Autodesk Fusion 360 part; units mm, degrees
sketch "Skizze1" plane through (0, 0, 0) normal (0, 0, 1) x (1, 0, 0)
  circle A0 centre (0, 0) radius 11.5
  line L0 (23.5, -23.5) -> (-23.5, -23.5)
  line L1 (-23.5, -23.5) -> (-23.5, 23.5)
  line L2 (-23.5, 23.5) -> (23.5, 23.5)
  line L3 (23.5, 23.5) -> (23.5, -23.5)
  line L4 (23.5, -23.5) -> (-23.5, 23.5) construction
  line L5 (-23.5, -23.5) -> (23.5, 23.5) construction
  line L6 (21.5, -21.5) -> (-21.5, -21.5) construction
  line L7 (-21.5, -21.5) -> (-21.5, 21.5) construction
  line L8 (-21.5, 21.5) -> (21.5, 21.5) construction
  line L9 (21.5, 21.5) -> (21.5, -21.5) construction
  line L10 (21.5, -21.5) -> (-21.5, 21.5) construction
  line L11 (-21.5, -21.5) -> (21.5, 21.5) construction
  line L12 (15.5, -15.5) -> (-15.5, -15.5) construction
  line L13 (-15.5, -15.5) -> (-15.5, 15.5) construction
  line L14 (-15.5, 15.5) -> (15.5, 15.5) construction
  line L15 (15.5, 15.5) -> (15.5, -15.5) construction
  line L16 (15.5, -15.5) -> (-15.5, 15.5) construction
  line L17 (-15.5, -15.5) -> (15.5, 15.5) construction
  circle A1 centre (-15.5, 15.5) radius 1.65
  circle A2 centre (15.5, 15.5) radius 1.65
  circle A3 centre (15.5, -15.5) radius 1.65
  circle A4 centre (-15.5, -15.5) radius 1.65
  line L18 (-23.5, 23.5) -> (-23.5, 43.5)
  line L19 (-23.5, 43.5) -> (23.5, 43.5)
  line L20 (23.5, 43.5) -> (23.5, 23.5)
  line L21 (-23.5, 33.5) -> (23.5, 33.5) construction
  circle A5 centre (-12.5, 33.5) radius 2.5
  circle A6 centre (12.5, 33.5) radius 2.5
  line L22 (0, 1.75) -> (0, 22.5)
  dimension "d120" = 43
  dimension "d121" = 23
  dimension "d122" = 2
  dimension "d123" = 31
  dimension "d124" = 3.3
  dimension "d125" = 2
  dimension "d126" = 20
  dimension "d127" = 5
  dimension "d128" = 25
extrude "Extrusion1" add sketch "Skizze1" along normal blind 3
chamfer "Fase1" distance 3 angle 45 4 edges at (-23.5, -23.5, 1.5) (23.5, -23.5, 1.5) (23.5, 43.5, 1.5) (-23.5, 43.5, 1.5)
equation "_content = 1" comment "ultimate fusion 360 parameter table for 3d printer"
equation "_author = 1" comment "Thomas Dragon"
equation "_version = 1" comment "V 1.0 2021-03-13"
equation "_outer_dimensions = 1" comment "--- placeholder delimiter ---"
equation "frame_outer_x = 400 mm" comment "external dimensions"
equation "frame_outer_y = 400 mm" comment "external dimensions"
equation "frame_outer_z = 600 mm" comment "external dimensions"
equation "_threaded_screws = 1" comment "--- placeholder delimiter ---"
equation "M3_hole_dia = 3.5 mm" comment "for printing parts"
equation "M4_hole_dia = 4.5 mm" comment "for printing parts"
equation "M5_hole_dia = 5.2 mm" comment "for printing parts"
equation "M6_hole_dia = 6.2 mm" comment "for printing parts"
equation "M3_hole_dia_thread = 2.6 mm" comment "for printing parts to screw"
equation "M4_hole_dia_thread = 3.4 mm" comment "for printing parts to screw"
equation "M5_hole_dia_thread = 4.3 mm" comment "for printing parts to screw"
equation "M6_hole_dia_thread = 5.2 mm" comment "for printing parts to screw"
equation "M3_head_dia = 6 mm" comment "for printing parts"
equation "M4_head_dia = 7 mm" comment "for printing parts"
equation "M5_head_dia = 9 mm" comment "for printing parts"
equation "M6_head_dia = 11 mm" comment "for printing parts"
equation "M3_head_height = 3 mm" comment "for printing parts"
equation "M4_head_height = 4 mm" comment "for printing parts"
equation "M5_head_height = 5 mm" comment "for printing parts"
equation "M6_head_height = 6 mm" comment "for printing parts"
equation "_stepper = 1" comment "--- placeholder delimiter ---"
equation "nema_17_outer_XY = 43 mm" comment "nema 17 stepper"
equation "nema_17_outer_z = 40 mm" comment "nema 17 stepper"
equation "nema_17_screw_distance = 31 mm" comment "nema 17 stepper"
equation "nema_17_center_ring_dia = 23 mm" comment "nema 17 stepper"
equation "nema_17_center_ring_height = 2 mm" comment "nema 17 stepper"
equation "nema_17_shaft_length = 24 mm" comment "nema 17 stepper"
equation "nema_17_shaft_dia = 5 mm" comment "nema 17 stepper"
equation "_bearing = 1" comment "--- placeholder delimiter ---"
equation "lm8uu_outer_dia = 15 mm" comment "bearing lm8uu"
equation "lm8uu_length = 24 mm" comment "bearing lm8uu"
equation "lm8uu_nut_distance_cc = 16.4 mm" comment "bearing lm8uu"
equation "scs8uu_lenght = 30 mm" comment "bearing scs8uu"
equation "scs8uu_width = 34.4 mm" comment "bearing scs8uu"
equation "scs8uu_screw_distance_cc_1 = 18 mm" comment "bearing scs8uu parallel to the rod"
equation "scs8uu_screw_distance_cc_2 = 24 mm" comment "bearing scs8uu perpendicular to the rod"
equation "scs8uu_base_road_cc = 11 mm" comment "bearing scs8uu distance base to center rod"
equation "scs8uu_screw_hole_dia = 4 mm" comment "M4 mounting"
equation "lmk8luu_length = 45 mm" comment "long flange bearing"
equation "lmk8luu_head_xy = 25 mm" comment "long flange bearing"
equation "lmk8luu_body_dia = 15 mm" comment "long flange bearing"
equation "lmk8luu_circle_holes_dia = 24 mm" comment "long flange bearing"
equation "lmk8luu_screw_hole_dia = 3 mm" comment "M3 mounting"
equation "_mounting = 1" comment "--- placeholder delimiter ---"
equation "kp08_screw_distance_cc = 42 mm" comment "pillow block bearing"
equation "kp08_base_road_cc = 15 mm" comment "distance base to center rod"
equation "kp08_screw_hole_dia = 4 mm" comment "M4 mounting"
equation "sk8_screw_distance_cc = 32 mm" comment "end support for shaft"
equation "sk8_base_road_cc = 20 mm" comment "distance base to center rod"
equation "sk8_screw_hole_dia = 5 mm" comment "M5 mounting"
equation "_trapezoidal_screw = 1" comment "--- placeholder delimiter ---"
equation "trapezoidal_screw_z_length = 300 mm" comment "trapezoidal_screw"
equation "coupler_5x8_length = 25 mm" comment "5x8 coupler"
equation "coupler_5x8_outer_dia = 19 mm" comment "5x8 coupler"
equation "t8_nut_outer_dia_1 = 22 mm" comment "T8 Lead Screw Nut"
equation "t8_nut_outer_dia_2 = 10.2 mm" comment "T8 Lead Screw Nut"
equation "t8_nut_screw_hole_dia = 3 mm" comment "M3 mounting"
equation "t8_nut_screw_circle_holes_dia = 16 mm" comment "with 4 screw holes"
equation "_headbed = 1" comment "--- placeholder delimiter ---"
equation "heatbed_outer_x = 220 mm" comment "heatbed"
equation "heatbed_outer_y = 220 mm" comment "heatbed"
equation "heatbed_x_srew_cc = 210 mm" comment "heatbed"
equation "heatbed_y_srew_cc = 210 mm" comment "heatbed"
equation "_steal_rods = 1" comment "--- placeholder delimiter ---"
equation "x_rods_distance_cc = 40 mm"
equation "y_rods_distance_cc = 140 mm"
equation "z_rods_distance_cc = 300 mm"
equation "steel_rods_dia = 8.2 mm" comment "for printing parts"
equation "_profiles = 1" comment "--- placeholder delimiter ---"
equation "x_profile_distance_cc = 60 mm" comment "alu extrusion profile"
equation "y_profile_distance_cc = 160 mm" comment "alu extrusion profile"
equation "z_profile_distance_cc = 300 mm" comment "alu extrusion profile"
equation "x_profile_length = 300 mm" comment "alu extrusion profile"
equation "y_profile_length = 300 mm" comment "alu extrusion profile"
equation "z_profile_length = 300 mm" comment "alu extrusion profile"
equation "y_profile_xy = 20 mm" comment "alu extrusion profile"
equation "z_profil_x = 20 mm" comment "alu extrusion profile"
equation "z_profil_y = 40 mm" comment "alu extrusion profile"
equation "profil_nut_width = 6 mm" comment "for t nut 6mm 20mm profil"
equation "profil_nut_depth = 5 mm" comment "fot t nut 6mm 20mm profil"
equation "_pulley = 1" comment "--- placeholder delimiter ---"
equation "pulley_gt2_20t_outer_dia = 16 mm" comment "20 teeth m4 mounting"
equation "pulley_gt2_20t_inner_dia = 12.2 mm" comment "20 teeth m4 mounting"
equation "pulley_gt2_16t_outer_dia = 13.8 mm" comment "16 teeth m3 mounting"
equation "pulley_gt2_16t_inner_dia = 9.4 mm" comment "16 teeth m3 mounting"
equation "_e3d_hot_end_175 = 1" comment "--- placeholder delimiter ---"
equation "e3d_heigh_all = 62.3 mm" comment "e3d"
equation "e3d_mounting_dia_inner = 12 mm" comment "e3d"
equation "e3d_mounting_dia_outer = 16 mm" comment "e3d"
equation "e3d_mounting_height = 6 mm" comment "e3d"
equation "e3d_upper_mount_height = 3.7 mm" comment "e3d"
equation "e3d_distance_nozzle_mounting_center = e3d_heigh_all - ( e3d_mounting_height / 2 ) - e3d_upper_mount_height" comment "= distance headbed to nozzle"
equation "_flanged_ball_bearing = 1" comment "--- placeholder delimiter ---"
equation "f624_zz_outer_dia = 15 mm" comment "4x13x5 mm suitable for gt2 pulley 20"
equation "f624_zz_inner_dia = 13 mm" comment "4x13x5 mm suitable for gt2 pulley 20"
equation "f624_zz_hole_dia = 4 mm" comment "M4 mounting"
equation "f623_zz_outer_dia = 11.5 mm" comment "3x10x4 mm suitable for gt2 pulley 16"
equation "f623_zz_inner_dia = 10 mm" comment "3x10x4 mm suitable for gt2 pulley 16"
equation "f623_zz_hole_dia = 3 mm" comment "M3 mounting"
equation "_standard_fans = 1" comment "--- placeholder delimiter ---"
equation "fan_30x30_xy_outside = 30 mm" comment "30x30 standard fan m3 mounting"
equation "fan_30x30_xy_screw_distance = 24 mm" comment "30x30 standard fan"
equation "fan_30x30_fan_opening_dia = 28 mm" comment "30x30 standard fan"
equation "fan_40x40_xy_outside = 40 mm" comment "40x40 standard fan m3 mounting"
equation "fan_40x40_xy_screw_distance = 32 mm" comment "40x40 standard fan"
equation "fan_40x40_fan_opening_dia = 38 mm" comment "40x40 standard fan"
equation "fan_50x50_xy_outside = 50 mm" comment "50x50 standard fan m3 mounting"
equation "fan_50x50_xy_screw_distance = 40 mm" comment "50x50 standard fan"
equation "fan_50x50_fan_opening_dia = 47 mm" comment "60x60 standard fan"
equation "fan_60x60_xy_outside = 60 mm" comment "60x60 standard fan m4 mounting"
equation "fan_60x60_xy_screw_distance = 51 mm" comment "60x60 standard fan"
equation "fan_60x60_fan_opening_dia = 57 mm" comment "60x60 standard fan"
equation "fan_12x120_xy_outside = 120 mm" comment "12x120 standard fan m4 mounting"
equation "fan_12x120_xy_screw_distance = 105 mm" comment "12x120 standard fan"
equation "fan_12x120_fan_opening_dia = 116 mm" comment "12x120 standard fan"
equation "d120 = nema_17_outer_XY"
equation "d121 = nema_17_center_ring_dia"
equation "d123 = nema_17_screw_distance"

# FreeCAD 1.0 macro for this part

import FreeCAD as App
import Part
import Sketcher

V = App.Vector
Q = App.Units.Quantity


def edges_at(feature, points):
    """Names of the edges that pass closest to the given points."""
    edges = feature.Shape.Edges
    near = lambda p: min(range(len(edges)), key=lambda i: edges[i].distToShape(Part.Vertex(*p))[0])
    return sorted({f"Edge{near(p) + 1}" for p in points})

doc = App.newDocument("Part")
params = doc.addObject("Spreadsheet::Sheet", "Params")
for row, (alias, value) in enumerate([
    ("sketch1_diameter", "23 mm"),
    ("sketch1_diameter2", "5 mm"),
    ("sketch1_diameter3", "3.3 mm"),
    ("sketch1_width", "47 mm"),
    ("sketch1_height", "67 mm"),
    ("pad1_length", "3 mm"),
    ("chamfer_size", "3 mm"),
], start=1):
    params.set(f"A{row}", alias)
    params.set(f"B{row}", "=" + value)
    params.setAlias(f"B{row}", alias)

body = doc.addObject("PartDesign::Body", "Body")

# Sketch on XY plane
sketch1 = body.newObject("Sketcher::SketchObject", "Sketch")
sketch1.AttachmentSupport = (doc.getObject("XY_Plane"), [""])
sketch1.MapMode = "FlatFace"
sketch1.addGeometry([
    Part.LineSegment(V(-23.5, -23.5, 0), V(23.5, -23.5, 0)),  # 0
    Part.LineSegment(V(23.5, -23.5, 0), V(23.5, 43.5, 0)),  # 1
    Part.LineSegment(V(23.5, 43.5, 0), V(-23.5, 43.5, 0)),  # 2
    Part.LineSegment(V(-23.5, 43.5, 0), V(-23.5, -23.5, 0)),  # 3
    Part.Circle(V(-15.5, -15.5, 0), V(0, 0, 1), 1.6),  # 4
    Part.Circle(V(15.5, -15.5, 0), V(0, 0, 1), 1.6),  # 5
    Part.Circle(V(0, 0, 0), V(0, 0, 1), 11.5),  # 6
    Part.Circle(V(-15.5, 15.5, 0), V(0, 0, 1), 1.6),  # 7
    Part.Circle(V(15.5, 15.5, 0), V(0, 0, 1), 1.6),  # 8
    Part.Circle(V(12.5, 33.5, 0), V(0, 0, 1), 2.5),  # 9
    Part.Circle(V(-12.5, 33.5, 0), V(0, 0, 1), 2.5),  # 10
], False)
sketch1.addConstraint([
    Sketcher.Constraint("Coincident", 0, 2, 1, 1),
    Sketcher.Constraint("Coincident", 1, 2, 2, 1),
    Sketcher.Constraint("Coincident", 2, 2, 3, 1),
    Sketcher.Constraint("Coincident", 3, 2, 0, 1),
    Sketcher.Constraint("Horizontal", 0),
    Sketcher.Constraint("Vertical", 1),
    Sketcher.Constraint("Horizontal", 2),
    Sketcher.Constraint("Vertical", 3),
    Sketcher.Constraint("Coincident", 6, 3, -1, 1),
    Sketcher.Constraint("Equal", 4, 5),
    Sketcher.Constraint("Equal", 5, 7),
    Sketcher.Constraint("Equal", 7, 8),
    Sketcher.Constraint("Equal", 9, 10),
    Sketcher.Constraint("Symmetric", 5, 3, 7, 3, -1, 1),
    Sketcher.Constraint("Symmetric", 4, 3, 8, 3, -1, 1),
    Sketcher.Constraint("Symmetric", 4, 3, 5, 3, -2),
    Sketcher.Constraint("Symmetric", 9, 3, 10, 3, -2),
    Sketcher.Constraint("Diameter", 6, Q("23 mm")),
    Sketcher.Constraint("Diameter", 9, Q("5 mm")),
    Sketcher.Constraint("Diameter", 4, Q("3.3 mm")),
    Sketcher.Constraint("DistanceX", 4, 3, 5, 3, Q("31 mm")),
    Sketcher.Constraint("DistanceY", 4, 3, 7, 3, Q("31 mm")),
    Sketcher.Constraint("DistanceX", 10, 3, 9, 3, Q("25 mm")),
    Sketcher.Constraint("DistanceX", 0, 1, 0, 2, Q("47 mm")),
    Sketcher.Constraint("DistanceY", 1, 1, 1, 2, Q("67 mm")),
    Sketcher.Constraint("DistanceY", 8, 3, 9, 3, Q("18 mm")),
    Sketcher.Constraint("DistanceX", 5, 3, 0, 2, Q("8 mm")),
    Sketcher.Constraint("DistanceY", 0, 2, 5, 3, Q("8 mm")),
])
sketch1.setExpression("Constraints[17]", "Params.sketch1_diameter")
sketch1.setExpression("Constraints[18]", "Params.sketch1_diameter2")
sketch1.setExpression("Constraints[19]", "Params.sketch1_diameter3")
sketch1.setExpression("Constraints[23]", "Params.sketch1_width")
sketch1.setExpression("Constraints[24]", "Params.sketch1_height")
pad1 = body.newObject("PartDesign::Pad", "Pad")
pad1.Profile = sketch1
pad1.setExpression("Length", "Params.pad1_length")
doc.recompute()

chamfer = body.newObject("PartDesign::Chamfer", "Chamfer")
chamfer.Base = (pad1, edges_at(pad1, [
    (-23.5, -23.5, 1.5),
    (23.5, -23.5, 1.5),
    (23.5, 43.5, 1.5),
    (-23.5, 43.5, 1.5),
]))
chamfer.setExpression("Size", "Params.chamfer_size")

doc.recompute()
